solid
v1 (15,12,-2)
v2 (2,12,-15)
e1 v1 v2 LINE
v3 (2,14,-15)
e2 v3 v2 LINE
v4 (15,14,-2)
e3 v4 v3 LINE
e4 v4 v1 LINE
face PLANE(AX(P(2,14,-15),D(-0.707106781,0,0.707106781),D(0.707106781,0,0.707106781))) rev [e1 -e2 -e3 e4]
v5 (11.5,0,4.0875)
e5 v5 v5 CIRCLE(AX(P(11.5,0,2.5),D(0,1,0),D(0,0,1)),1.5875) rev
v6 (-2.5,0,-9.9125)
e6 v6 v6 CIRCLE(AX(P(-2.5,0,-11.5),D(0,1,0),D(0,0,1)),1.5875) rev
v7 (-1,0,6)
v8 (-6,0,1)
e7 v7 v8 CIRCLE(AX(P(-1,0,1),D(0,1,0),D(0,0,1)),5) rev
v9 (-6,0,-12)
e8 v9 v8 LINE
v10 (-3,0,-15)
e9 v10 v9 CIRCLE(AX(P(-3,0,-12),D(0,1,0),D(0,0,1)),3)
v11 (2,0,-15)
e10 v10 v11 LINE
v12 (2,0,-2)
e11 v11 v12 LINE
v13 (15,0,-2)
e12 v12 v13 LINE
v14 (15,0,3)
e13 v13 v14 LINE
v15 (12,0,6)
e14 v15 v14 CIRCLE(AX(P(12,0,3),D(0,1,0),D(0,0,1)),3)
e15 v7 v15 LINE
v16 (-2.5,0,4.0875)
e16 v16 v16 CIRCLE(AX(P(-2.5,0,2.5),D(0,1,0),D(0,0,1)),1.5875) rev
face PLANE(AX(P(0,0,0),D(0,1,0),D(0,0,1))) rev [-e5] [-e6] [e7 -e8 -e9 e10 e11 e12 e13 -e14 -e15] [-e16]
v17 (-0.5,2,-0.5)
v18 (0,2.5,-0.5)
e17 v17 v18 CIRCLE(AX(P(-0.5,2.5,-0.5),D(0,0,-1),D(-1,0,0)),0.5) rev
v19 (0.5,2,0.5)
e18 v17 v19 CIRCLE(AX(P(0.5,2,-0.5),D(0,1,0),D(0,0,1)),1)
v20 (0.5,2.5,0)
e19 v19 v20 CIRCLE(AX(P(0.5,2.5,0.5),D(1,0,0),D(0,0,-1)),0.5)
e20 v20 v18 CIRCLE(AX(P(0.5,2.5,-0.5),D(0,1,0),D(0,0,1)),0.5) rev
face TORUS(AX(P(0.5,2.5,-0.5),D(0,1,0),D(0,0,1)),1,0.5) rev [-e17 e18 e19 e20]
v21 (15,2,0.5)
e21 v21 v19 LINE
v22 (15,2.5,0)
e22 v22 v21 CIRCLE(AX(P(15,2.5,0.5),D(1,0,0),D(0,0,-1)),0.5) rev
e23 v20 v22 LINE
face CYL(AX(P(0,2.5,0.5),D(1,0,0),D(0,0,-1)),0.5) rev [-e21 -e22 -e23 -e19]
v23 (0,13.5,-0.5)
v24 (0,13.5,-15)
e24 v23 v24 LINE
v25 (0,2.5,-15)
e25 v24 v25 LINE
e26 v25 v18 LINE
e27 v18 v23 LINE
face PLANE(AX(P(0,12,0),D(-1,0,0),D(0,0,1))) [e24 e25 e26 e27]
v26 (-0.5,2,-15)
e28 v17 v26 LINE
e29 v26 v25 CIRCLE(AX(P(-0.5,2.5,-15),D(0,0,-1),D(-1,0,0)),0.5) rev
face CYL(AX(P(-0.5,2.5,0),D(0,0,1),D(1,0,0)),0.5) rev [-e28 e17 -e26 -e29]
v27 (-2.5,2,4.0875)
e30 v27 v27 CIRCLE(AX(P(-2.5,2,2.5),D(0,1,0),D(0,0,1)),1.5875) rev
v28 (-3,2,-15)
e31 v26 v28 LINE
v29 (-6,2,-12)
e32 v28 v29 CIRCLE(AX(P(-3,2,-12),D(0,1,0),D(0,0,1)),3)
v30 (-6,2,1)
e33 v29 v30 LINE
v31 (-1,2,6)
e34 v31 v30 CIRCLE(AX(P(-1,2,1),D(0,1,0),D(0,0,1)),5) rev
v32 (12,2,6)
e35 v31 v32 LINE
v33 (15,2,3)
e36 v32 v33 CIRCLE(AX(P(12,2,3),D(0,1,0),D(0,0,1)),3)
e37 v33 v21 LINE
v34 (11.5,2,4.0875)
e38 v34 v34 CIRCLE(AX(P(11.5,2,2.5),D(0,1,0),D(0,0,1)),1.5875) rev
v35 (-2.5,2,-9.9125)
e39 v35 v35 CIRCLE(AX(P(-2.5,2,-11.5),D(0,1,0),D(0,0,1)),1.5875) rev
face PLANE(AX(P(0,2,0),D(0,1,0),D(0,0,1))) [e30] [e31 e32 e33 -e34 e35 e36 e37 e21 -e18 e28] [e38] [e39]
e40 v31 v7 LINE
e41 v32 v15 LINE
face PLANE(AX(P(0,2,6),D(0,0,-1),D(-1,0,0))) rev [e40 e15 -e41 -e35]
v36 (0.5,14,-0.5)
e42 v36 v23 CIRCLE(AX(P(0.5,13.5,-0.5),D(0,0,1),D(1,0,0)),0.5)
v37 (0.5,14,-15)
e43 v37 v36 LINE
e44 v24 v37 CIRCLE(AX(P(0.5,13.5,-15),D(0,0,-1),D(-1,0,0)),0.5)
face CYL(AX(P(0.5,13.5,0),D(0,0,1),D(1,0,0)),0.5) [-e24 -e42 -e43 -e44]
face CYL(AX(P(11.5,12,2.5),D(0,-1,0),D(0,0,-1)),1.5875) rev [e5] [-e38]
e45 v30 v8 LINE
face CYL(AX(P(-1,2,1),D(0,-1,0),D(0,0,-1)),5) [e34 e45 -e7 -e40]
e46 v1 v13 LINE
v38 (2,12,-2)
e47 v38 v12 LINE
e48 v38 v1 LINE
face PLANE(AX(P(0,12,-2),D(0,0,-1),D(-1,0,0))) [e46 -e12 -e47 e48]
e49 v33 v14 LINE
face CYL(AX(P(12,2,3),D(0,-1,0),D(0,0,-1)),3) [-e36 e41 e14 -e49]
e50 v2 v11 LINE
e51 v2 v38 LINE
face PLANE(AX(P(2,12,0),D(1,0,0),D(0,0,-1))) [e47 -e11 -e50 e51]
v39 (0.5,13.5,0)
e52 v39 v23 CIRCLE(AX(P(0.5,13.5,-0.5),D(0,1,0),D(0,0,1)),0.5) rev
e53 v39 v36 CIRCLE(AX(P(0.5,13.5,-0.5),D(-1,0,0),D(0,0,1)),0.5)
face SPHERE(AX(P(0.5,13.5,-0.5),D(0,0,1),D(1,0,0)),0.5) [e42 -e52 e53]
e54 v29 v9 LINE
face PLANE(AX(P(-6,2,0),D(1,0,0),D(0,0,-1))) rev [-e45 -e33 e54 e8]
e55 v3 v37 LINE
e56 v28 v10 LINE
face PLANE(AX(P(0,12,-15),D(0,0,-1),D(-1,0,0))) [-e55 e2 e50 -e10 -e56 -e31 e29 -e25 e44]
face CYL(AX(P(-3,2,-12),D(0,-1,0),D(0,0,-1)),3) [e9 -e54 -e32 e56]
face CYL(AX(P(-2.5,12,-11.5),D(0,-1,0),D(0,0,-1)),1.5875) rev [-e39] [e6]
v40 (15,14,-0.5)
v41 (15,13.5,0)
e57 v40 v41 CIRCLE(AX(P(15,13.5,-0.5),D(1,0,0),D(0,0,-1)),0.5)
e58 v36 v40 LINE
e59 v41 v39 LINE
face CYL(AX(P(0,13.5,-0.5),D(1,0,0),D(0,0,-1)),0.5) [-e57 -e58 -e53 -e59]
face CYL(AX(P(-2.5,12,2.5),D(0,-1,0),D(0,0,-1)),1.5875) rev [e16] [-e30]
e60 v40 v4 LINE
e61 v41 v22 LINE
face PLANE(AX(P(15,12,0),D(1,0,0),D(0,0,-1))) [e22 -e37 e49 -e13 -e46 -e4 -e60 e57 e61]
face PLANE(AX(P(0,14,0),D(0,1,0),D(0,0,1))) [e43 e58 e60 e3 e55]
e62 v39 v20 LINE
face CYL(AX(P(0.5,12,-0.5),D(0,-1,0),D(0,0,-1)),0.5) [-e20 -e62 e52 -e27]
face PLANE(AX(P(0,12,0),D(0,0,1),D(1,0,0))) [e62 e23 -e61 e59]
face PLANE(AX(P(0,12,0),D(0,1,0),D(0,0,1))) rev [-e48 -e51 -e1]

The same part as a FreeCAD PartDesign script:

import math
import FreeCAD as App
import Part
import Sketcher
Q = App.Units.Quantity


def edges_at(feature, points):
    """Names of the edges that pass closest to the given points."""
    edges = feature.Shape.Edges
    near = lambda p: min(range(len(edges)), key=lambda i: edges[i].distToShape(Part.Vertex(*p))[0])
    return sorted({f"Edge{near(p) + 1}" for p in points})


def add_polygon(sketch, points):
    """Adds a closed chain of lines whose ends are joined by coincident constraints."""
    first, n = sketch.GeometryCount, len(points)
    for a, b in zip(points, points[1:] + points[:1]):
        sketch.addGeometry(Part.LineSegment(App.Vector(*a, 0), App.Vector(*b, 0)), False)
    for i in range(n):
        sketch.addConstraint(Sketcher.Constraint("Coincident", first + i, 2, first + (i + 1) % n, 1))

doc = App.newDocument("Part")
body = doc.addObject("PartDesign::Body", "Body")

sketch1 = body.newObject("Sketcher::SketchObject", "Sketch")
sketch1.AttachmentSupport = (doc.getObject("XZ_Plane"), [""])
sketch1.MapMode = "FlatFace"
add_polygon(sketch1, [(0, 0), (15, 0), (15, -2), (2, -2), (2, -15), (0, -15)])
sketch1.addConstraint([
    Sketcher.Constraint("Horizontal", 0),
    Sketcher.Constraint("Vertical", 1),
    Sketcher.Constraint("Horizontal", 2),
    Sketcher.Constraint("Vertical", 3),
    Sketcher.Constraint("Horizontal", 4),
    Sketcher.Constraint("Vertical", 5),
    Sketcher.Constraint("Coincident", 5, 2, -1, 1),
    Sketcher.Constraint("Equal", 4, 1),
    Sketcher.Constraint("Equal", 2, 3),
    Sketcher.Constraint("DistanceX", 0, 1, 0, 2, Q("15 mm")),
    Sketcher.Constraint("DistanceX", 2, 2, 2, 1, Q("13 mm")),
])
pad1 = body.newObject("PartDesign::Pad", "Pad")
pad1.Profile = sketch1
pad1.Length = 12
pad1.Reversed = True

sketch2 = body.newObject("Sketcher::SketchObject", "Sketch001")
sketch2.AttachmentSupport = (doc.getObject("XZ_Plane"), [""])
sketch2.MapMode = "FlatFace"
sketch2.addGeometry([
    Part.LineSegment(App.Vector(0, -15, 0), App.Vector(-3, -15, 0)),
    Part.ArcOfCircle(Part.Circle(App.Vector(-3, -12, 0), App.Vector(0, 0, 1), 3), math.radians(180), math.radians(270)),
    Part.LineSegment(App.Vector(-6, -12, 0), App.Vector(-6, 1, 0)),
    Part.ArcOfCircle(Part.Circle(App.Vector(-1, 1, 0), App.Vector(0, 0, 1), 5), math.radians(90), math.radians(180)),
    Part.LineSegment(App.Vector(-1, 6, 0), App.Vector(12, 6, 0)),
    Part.ArcOfCircle(Part.Circle(App.Vector(12, 3, 0), App.Vector(0, 0, 1), 3), math.radians(0), math.radians(90)),
    Part.LineSegment(App.Vector(15, 3, 0), App.Vector(15, 0, 0)),
    Part.LineSegment(App.Vector(15, 0, 0), App.Vector(0, 0, 0)),
    Part.LineSegment(App.Vector(0, 0, 0), App.Vector(0, -15, 0)),
], False)
sketch2.addConstraint([
    Sketcher.Constraint("Tangent", 0, 2, 1, 2),
    Sketcher.Constraint("Tangent", 1, 1, 2, 1),
    Sketcher.Constraint("Tangent", 2, 2, 3, 2),
    Sketcher.Constraint("Tangent", 3, 1, 4, 1),
    Sketcher.Constraint("Tangent", 4, 2, 5, 2),
    Sketcher.Constraint("Tangent", 5, 1, 6, 1),
    Sketcher.Constraint("Coincident", 6, 2, 7, 1),
    Sketcher.Constraint("Coincident", 7, 2, 8, 1),
    Sketcher.Constraint("Coincident", 8, 2, 0, 1),
    Sketcher.Constraint("Horizontal", 0),
    Sketcher.Constraint("Vertical", 2),
    Sketcher.Constraint("Horizontal", 4),
    Sketcher.Constraint("Vertical", 6),
    Sketcher.Constraint("Horizontal", 7),
    Sketcher.Constraint("Vertical", 8),
    Sketcher.Constraint("Coincident", 7, 2, -1, 1),
    Sketcher.Constraint("Equal", 1, 5),
    Sketcher.Constraint("Equal", 4, 2),
    Sketcher.Constraint("Equal", 0, 6),
    Sketcher.Constraint("Radius", 1, Q("3 mm")),
    Sketcher.Constraint("Radius", 3, Q("5 mm")),
    Sketcher.Constraint("DistanceX", 0, 2, 0, 1, Q("3 mm")),
    Sketcher.Constraint("DistanceX", 4, 1, 4, 2, Q("13 mm")),
])
pad2 = body.newObject("PartDesign::Pad", "Pad001")
pad2.Profile = sketch2
pad2.Length = 2
pad2.Reversed = True

sketch3 = body.newObject("Sketcher::SketchObject", "Sketch002")
sketch3.AttachmentSupport = (doc.getObject("XZ_Plane"), [""])
sketch3.MapMode = "FlatFace"
sketch3.AttachmentOffset = App.Placement(App.Vector(0, 0, -12), App.Rotation())
add_polygon(sketch3, [(15, -2), (2, -15), (0, -15), (0, 0), (15, 0)])
sketch3.addConstraint([
    Sketcher.Constraint("Horizontal", 1),
    Sketcher.Constraint("Vertical", 2),
    Sketcher.Constraint("Horizontal", 3),
    Sketcher.Constraint("Vertical", 4),
    Sketcher.Constraint("Coincident", 2, 2, -1, 1),
    Sketcher.Constraint("Equal", 3, 2),
    Sketcher.Constraint("Equal", 1, 4),
    Sketcher.Constraint("DistanceX", 1, 2, 1, 1, Q("2 mm")),
    Sketcher.Constraint("DistanceX", 3, 1, 3, 2, Q("15 mm")),
])
pad3 = body.newObject("PartDesign::Pad", "Pad002")
pad3.Profile = sketch3
pad3.Length = 2
pad3.Reversed = True

sketch4 = body.newObject("Sketcher::SketchObject", "Sketch003")
sketch4.AttachmentSupport = (doc.getObject("XZ_Plane"), [""])
sketch4.MapMode = "FlatFace"
sketch4.addGeometry([
    Part.Circle(App.Vector(-2.5, 2.5, 0), App.Vector(0, 0, 1), 1.6),
    Part.Circle(App.Vector(-2.5, -11.5, 0), App.Vector(0, 0, 1), 1.6),
    Part.Circle(App.Vector(11.5, 2.5, 0), App.Vector(0, 0, 1), 1.6),
], False)
sketch4.addConstraint([
    Sketcher.Constraint("Equal", 0, 1),
    Sketcher.Constraint("Equal", 1, 2),
    Sketcher.Constraint("Horizontal", 0, 3, 2, 3),
    Sketcher.Constraint("Vertical", 0, 3, 1, 3),
    Sketcher.Constraint("Diameter", 0, Q("3.175 mm")),
    Sketcher.Constraint("DistanceY", 1, 3, 0, 3, Q("14 mm")),
    Sketcher.Constraint("DistanceX", 0, 3, 2, 3, Q("14 mm")),
    Sketcher.Constraint("DistanceX", 0, 3, -1, 1, Q("2.5 mm")),
    Sketcher.Constraint("DistanceY", -1, 1, 0, 3, Q("2.5 mm")),
])
pocket1 = body.newObject("PartDesign::Pocket", "Pocket")
pocket1.Profile = sketch4
pocket1.Type = "ThroughAll"
pocket1.Midplane = True
doc.recompute()

fillet = body.newObject("PartDesign::Fillet", "Fillet")
fillet.Base = (pocket1, edges_at(pocket1, [
    (0, 8, 0),
    (7.5, 2, 0),
    (0, 2, -7.5),
    (0, 14, -7.5),
    (7.5, 14, 0),
]))
fillet.Radius = 0.5

doc.recompute()
